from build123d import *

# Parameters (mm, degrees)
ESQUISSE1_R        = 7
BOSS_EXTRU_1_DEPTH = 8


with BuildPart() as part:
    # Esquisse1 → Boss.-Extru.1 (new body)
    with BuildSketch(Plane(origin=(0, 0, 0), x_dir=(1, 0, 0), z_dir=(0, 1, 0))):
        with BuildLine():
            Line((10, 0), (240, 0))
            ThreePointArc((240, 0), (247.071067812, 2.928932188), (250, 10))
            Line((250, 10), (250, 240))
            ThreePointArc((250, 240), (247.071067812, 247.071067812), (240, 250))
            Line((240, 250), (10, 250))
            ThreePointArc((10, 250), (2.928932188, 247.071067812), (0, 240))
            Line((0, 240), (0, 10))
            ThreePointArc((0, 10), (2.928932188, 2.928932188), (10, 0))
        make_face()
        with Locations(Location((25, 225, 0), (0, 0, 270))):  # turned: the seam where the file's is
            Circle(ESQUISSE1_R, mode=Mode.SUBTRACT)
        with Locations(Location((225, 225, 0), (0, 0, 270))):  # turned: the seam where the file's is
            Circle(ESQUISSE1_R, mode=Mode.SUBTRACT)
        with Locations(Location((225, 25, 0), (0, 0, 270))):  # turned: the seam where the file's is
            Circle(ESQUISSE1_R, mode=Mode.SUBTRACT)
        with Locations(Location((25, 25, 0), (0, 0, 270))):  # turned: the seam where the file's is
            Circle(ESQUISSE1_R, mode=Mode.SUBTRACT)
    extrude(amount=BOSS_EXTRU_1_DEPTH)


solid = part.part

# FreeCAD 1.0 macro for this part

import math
import FreeCAD as App
import Part
import Sketcher
from FreeCAD import Vector
Q = App.Units.Quantity

doc = App.newDocument("Part")
body = doc.addObject("PartDesign::Body", "Body")

# Sketch on XZ plane
sketch1 = body.newObject("Sketcher::SketchObject", "Sketch")
sketch1.AttachmentSupport = (doc.getObject("XZ_Plane"), [""])
sketch1.MapMode = "FlatFace"
sketch1.addGeometry([
    Part.LineSegment(Vector(10, 0, 0), Vector(240, 0, 0)),  # 0
    Part.ArcOfCircle(Part.Circle(Vector(240, -10, 0), Vector(0, 0, 1), 10), math.radians(0), math.radians(90)),  # 1
    Part.LineSegment(Vector(250, -10, 0), Vector(250, -240, 0)),  # 2
    Part.ArcOfCircle(Part.Circle(Vector(240, -240, 0), Vector(0, 0, 1), 10), math.radians(-90), math.radians(0)),  # 3
    Part.LineSegment(Vector(240, -250, 0), Vector(10, -250, 0)),  # 4
    Part.ArcOfCircle(Part.Circle(Vector(10, -240, 0), Vector(0, 0, 1), 10), math.radians(180), math.radians(270)),  # 5
    Part.LineSegment(Vector(0, -240, 0), Vector(0, -10, 0)),  # 6
    Part.ArcOfCircle(Part.Circle(Vector(10, -10, 0), Vector(0, 0, 1), 10), math.radians(90), math.radians(180)),  # 7
    Part.Circle(Vector(25, -25, 0), Vector(0, 0, 1), 7),  # 8
    Part.Circle(Vector(225, -25, 0), Vector(0, 0, 1), 7),  # 9
    Part.Circle(Vector(25, -225, 0), Vector(0, 0, 1), 7),  # 10
    Part.Circle(Vector(225, -225, 0), Vector(0, 0, 1), 7),  # 11
], False)
sketch1.addConstraint([
    Sketcher.Constraint("Tangent", 0, 2, 1, 2),
    Sketcher.Constraint("Tangent", 1, 1, 2, 1),
    Sketcher.Constraint("Tangent", 2, 2, 3, 2),
    Sketcher.Constraint("Tangent", 3, 1, 4, 1),
    Sketcher.Constraint("Tangent", 4, 2, 5, 2),
    Sketcher.Constraint("Tangent", 5, 1, 6, 1),
    Sketcher.Constraint("Tangent", 6, 2, 7, 2),
    Sketcher.Constraint("Tangent", 7, 1, 0, 1),
    Sketcher.Constraint("Horizontal", 0),
    Sketcher.Constraint("Vertical", 2),
    Sketcher.Constraint("Horizontal", 4),
    Sketcher.Constraint("Vertical", 6),
    Sketcher.Constraint("Equal", 1, 3),
    Sketcher.Constraint("Equal", 3, 5),
    Sketcher.Constraint("Equal", 5, 7),
    Sketcher.Constraint("Equal", 8, 9),
    Sketcher.Constraint("Equal", 9, 10),
    Sketcher.Constraint("Equal", 10, 11),
    Sketcher.Constraint("PointOnObject", 0, 2, -1),
    Sketcher.Constraint("PointOnObject", 5, 1, -2),
    Sketcher.Constraint("Horizontal", 8, 3, 9, 3),
    Sketcher.Constraint("Horizontal", 10, 3, 11, 3),
    Sketcher.Constraint("Vertical", 8, 3, 10, 3),
    Sketcher.Constraint("Vertical", 9, 3, 11, 3),
    Sketcher.Constraint("Equal", 4, 2),
    Sketcher.Constraint("Diameter", 8, Q("14 mm")),
    Sketcher.Constraint("Radius", 1, Q("10 mm")),
    Sketcher.Constraint("DistanceX", 0, 1, 0, 2, Q("230 mm")),
    Sketcher.Constraint("DistanceX", -1, 1, 8, 3, Q("25 mm")),
    Sketcher.Constraint("DistanceY", 8, 3, -1, 1, Q("25 mm")),
    Sketcher.Constraint("DistanceX", -1, 1, 9, 3, Q("225 mm")),
    Sketcher.Constraint("DistanceY", 10, 3, -1, 1, Q("225 mm")),
])
pad1 = body.newObject("PartDesign::Pad", "Pad")
pad1.Profile = sketch1
pad1.Length = 8
pad1.Reversed = True

doc.recompute()
